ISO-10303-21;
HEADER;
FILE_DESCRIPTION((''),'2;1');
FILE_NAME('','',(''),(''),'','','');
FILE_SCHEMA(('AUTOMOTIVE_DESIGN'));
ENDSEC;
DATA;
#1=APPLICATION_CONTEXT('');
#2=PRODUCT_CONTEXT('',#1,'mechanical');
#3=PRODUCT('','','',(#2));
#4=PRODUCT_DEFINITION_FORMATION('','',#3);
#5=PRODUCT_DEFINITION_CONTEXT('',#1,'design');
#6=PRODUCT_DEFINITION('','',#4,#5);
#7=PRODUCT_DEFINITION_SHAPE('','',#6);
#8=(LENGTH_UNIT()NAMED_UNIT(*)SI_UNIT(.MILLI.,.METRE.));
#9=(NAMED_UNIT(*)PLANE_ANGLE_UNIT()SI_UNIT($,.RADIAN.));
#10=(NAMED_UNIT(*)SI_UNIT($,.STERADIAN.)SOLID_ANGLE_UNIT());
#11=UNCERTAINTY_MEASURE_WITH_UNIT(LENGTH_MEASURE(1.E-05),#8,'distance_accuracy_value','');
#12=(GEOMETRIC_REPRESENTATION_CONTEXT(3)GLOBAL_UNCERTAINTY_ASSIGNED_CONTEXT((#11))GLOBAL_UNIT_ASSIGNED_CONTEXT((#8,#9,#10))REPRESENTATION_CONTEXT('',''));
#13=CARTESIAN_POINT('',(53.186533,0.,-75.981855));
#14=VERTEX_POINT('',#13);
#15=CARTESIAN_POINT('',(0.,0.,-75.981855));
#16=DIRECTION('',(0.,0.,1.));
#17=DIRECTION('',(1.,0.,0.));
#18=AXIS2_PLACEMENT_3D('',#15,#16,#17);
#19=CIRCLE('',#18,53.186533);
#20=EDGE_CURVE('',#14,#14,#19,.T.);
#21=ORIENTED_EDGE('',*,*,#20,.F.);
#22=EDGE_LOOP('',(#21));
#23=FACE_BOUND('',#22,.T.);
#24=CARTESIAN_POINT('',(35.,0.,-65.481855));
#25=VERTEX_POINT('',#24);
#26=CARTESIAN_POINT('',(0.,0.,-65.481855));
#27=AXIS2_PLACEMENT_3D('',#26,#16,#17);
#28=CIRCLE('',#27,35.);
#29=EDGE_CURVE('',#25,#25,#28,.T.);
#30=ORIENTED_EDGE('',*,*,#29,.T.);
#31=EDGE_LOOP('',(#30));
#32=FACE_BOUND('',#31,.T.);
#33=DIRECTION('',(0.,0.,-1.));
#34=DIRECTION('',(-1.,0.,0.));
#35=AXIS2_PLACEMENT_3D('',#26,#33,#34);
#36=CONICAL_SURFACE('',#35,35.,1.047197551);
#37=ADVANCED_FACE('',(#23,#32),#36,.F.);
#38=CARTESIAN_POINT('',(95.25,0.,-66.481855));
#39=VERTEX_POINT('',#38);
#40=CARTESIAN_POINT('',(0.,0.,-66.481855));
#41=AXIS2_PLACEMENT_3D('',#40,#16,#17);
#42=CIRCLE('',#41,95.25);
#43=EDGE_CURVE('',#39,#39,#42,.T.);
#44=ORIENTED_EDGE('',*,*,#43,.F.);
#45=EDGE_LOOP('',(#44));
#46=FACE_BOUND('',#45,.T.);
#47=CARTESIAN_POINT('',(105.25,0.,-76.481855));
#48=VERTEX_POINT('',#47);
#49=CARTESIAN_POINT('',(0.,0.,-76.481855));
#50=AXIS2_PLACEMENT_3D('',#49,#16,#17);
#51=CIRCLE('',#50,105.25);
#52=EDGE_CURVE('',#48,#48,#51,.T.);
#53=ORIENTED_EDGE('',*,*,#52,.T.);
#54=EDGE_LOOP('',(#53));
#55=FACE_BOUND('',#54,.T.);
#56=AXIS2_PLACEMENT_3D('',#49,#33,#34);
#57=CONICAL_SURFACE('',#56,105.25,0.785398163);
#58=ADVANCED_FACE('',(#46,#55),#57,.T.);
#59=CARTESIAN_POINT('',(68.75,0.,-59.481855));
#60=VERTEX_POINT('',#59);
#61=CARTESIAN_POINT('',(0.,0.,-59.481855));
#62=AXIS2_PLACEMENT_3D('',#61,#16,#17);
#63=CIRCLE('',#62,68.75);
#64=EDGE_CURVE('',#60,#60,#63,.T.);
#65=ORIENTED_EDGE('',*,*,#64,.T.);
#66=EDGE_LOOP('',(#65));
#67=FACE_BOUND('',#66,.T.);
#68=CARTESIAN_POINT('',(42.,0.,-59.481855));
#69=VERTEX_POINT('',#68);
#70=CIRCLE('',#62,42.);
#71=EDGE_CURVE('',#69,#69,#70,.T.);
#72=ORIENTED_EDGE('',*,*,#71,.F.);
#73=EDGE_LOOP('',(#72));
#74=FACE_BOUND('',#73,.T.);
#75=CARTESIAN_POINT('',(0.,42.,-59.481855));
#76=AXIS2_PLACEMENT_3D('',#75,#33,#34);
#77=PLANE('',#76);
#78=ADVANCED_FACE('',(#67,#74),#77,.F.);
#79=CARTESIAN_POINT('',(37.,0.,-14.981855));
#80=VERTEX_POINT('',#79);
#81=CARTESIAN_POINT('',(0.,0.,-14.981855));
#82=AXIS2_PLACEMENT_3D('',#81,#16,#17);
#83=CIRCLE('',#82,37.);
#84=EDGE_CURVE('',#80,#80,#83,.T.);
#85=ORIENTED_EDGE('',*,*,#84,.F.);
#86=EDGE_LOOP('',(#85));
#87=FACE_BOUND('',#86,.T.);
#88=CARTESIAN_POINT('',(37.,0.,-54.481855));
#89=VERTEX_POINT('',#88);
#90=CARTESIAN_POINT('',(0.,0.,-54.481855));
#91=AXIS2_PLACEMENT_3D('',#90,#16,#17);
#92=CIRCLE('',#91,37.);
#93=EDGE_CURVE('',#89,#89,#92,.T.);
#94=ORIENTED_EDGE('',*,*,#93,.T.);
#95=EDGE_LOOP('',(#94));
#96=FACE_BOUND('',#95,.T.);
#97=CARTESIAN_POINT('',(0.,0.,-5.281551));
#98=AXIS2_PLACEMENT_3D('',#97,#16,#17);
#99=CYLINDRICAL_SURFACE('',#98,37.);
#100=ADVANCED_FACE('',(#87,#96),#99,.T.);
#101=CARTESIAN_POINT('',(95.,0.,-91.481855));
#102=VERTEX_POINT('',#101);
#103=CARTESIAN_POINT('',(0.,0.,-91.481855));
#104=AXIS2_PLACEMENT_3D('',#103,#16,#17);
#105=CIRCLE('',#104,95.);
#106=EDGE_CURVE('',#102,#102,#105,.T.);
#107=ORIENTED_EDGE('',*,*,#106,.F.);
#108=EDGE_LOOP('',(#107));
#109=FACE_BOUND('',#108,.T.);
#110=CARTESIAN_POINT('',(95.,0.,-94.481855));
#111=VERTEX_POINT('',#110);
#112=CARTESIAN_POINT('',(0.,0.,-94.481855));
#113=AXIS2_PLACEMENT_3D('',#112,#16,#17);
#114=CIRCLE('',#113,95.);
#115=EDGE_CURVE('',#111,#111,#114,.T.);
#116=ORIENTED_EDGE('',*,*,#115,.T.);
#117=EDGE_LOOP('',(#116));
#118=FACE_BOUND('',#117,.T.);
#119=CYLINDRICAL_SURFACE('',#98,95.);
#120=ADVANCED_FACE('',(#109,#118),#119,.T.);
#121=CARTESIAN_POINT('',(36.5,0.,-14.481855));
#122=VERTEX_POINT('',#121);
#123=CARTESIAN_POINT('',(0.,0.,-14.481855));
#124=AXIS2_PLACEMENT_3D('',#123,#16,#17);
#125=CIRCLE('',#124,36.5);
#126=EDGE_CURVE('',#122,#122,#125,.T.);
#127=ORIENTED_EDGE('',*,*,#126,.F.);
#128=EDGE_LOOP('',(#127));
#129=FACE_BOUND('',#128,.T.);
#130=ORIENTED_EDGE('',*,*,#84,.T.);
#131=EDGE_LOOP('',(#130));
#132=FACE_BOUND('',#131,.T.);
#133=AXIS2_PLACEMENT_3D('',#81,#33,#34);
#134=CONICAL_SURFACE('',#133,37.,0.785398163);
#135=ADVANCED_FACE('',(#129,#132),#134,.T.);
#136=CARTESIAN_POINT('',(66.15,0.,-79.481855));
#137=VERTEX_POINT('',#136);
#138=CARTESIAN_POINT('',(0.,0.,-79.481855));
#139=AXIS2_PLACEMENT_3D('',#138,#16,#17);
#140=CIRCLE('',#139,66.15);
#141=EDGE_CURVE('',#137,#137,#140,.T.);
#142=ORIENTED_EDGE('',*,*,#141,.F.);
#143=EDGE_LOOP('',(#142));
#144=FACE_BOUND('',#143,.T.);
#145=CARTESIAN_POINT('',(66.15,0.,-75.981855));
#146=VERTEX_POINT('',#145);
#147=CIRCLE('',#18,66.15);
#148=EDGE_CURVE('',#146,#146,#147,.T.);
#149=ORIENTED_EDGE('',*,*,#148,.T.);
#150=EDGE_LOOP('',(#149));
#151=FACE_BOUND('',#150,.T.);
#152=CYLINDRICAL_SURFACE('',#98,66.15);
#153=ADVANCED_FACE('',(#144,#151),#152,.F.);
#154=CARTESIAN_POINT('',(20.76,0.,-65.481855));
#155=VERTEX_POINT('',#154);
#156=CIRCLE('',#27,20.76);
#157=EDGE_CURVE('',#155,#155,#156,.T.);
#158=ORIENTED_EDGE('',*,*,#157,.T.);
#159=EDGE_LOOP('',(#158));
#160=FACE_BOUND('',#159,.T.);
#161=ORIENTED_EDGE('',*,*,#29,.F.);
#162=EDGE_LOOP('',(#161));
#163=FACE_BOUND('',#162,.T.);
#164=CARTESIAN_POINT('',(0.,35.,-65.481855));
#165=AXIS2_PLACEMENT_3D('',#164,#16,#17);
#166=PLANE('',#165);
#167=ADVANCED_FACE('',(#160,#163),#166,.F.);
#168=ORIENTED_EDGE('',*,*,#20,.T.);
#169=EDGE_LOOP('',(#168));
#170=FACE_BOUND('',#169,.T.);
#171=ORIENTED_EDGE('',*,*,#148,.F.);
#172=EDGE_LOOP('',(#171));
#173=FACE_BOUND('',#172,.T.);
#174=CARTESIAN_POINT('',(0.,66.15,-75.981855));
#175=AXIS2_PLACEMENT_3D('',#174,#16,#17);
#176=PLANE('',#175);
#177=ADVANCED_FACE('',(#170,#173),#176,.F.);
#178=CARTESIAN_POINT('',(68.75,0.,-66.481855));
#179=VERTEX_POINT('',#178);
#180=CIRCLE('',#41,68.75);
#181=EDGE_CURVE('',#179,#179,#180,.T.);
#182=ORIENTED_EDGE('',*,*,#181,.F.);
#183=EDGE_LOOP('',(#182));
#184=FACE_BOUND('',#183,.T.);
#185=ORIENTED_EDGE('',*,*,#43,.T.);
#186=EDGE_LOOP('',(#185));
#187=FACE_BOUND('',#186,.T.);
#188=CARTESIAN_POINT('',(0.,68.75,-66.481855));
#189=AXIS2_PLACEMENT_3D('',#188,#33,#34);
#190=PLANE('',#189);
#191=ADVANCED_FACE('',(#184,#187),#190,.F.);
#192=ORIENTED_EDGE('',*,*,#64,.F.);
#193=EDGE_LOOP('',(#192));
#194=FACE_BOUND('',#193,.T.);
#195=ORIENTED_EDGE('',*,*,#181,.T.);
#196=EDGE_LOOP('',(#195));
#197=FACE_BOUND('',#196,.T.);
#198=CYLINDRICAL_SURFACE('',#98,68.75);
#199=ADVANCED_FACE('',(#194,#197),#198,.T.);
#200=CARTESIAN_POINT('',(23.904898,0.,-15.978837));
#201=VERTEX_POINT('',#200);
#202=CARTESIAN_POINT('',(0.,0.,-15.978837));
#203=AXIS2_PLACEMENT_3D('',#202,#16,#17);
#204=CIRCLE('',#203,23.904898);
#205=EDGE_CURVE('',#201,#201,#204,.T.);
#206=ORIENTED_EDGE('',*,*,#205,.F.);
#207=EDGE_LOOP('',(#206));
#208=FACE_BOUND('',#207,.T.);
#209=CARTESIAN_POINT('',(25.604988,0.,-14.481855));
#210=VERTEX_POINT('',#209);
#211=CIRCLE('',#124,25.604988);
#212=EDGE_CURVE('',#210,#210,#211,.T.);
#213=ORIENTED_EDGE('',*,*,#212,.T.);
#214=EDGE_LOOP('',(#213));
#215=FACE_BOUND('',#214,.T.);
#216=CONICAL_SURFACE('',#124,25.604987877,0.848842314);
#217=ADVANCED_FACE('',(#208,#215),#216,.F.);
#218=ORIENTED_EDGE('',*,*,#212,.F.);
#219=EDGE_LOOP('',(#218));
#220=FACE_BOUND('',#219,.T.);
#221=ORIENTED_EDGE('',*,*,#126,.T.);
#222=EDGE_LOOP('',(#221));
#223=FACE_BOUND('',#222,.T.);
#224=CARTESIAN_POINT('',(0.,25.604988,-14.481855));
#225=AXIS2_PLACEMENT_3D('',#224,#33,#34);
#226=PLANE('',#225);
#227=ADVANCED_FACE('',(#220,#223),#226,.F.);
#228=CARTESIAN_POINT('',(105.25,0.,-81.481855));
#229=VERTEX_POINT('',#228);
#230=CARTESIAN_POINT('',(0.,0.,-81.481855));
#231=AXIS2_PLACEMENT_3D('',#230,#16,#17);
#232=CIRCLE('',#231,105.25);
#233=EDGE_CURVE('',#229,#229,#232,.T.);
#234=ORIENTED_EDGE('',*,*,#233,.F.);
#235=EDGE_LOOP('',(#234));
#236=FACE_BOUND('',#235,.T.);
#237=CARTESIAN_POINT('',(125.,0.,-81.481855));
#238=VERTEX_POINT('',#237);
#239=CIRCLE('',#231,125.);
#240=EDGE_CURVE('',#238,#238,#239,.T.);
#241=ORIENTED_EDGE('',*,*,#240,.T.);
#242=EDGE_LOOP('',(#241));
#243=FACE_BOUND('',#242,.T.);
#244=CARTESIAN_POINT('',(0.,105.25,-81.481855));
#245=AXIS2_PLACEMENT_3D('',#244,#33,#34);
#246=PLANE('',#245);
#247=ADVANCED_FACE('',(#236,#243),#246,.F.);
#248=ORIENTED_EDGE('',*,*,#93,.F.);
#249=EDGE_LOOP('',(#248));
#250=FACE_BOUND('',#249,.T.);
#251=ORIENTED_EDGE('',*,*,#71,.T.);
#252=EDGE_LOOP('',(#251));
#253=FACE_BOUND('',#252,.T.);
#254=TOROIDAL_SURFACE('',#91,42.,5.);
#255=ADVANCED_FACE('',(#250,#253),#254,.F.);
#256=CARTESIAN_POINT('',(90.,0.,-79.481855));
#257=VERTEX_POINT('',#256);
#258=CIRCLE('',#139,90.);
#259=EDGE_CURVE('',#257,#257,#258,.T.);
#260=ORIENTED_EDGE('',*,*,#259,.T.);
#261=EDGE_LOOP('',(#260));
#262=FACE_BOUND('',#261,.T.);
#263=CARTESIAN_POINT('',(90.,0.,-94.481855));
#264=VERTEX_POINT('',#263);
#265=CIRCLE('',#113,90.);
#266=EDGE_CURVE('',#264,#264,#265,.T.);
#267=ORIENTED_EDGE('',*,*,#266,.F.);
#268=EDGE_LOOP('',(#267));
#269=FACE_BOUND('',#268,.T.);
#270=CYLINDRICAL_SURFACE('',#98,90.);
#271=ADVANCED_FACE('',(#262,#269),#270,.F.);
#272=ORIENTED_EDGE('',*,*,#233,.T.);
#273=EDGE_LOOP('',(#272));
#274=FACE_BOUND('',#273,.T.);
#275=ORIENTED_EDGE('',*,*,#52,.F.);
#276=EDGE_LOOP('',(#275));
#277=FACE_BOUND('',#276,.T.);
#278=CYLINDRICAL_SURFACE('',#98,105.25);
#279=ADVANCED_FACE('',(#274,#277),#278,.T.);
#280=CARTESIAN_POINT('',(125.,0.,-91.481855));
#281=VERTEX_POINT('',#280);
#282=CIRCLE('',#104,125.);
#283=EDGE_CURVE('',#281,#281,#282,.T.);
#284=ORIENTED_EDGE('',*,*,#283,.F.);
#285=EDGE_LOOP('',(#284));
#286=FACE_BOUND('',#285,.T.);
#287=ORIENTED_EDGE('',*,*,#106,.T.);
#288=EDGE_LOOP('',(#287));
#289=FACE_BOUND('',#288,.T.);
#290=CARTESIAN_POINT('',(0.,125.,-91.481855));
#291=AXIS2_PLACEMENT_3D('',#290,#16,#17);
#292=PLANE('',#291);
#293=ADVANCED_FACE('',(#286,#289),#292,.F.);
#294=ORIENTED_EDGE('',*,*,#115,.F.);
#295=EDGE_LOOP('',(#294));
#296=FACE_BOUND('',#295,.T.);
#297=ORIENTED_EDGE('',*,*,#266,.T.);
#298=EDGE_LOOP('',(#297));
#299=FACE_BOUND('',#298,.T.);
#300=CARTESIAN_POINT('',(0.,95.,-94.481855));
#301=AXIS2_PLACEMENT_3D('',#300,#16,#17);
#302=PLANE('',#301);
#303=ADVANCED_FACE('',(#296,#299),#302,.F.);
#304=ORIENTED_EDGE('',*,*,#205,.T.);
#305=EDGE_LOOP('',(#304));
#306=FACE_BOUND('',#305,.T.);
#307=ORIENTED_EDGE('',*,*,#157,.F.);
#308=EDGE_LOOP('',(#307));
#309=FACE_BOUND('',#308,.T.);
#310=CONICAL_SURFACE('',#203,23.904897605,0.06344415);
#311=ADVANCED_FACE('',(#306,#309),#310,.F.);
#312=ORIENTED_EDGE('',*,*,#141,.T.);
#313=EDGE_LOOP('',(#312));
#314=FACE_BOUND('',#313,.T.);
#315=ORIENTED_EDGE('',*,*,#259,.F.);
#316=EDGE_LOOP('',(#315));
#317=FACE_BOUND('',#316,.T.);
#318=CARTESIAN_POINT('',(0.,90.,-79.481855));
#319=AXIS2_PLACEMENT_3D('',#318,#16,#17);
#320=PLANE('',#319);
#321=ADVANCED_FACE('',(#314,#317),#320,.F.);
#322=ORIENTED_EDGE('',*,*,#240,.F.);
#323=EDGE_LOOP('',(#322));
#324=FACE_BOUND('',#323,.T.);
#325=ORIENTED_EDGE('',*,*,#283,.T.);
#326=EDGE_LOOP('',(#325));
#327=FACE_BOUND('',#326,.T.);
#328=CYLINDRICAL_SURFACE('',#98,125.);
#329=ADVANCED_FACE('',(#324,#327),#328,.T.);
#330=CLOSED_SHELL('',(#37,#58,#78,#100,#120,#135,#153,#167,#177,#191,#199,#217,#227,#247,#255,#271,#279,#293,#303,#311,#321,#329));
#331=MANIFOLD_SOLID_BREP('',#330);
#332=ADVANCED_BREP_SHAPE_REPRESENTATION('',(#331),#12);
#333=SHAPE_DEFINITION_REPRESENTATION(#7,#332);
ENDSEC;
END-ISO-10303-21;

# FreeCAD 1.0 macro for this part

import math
import FreeCAD as App
import Part
import Sketcher
from FreeCAD import Vector
Q = App.Units.Quantity

doc = App.newDocument("Part")
body = doc.addObject("PartDesign::Body", "Body")

sketch1 = body.newObject("Sketcher::SketchObject", "Sketch")
sketch1.AttachmentSupport = (doc.getObject("YZ_Plane"), [""])
sketch1.MapMode = "FlatFace"
sketch1.addGeometry([
    Part.LineSegment(Vector(23.9, -16, 0), Vector(20.8, -65.5, 0)),
    Part.LineSegment(Vector(20.8, -65.5, 0), Vector(35, -65.5, 0)),
    Part.LineSegment(Vector(35, -65.5, 0), Vector(53.2, -76, 0)),
    Part.LineSegment(Vector(53.2, -76, 0), Vector(66.2, -76, 0)),
    Part.LineSegment(Vector(66.2, -76, 0), Vector(66.2, -79.5, 0)),
    Part.LineSegment(Vector(66.2, -79.5, 0), Vector(90, -79.5, 0)),
    Part.LineSegment(Vector(90, -79.5, 0), Vector(90, -94.5, 0)),
    Part.LineSegment(Vector(90, -94.5, 0), Vector(95, -94.5, 0)),
    Part.LineSegment(Vector(95, -94.5, 0), Vector(95, -91.5, 0)),
    Part.LineSegment(Vector(95, -91.5, 0), Vector(125, -91.5, 0)),
    Part.LineSegment(Vector(125, -91.5, 0), Vector(125, -81.5, 0)),
    Part.LineSegment(Vector(125, -81.5, 0), Vector(105.2, -81.5, 0)),
    Part.LineSegment(Vector(105.2, -81.5, 0), Vector(105.2, -76.5, 0)),
    Part.LineSegment(Vector(105.2, -76.5, 0), Vector(95.2, -66.5, 0)),
    Part.LineSegment(Vector(95.2, -66.5, 0), Vector(68.8, -66.5, 0)),
    Part.LineSegment(Vector(68.8, -66.5, 0), Vector(68.8, -59.5, 0)),
    Part.LineSegment(Vector(68.8, -59.5, 0), Vector(42, -59.5, 0)),
    Part.ArcOfCircle(Part.Circle(Vector(42, -54.5, 0), Vector(0, 0, 1), 5), math.radians(180), math.radians(270)),
    Part.LineSegment(Vector(37, -54.5, 0), Vector(37, -15, 0)),
    Part.LineSegment(Vector(37, -15, 0), Vector(36.5, -14.5, 0)),
    Part.LineSegment(Vector(36.5, -14.5, 0), Vector(25.6, -14.5, 0)),
    Part.LineSegment(Vector(25.6, -14.5, 0), Vector(23.9, -16, 0)),
], False)
sketch1.addConstraint([
    Sketcher.Constraint("Coincident", 0, 2, 1, 1),
    Sketcher.Constraint("Coincident", 1, 2, 2, 1),
    Sketcher.Constraint("Coincident", 2, 2, 3, 1),
    Sketcher.Constraint("Coincident", 3, 2, 4, 1),
    Sketcher.Constraint("Coincident", 4, 2, 5, 1),
    Sketcher.Constraint("Coincident", 5, 2, 6, 1),
    Sketcher.Constraint("Coincident", 6, 2, 7, 1),
    Sketcher.Constraint("Coincident", 7, 2, 8, 1),
    Sketcher.Constraint("Coincident", 8, 2, 9, 1),
    Sketcher.Constraint("Coincident", 9, 2, 10, 1),
    Sketcher.Constraint("Coincident", 10, 2, 11, 1),
    Sketcher.Constraint("Coincident", 11, 2, 12, 1),
    Sketcher.Constraint("Coincident", 12, 2, 13, 1),
    Sketcher.Constraint("Coincident", 13, 2, 14, 1),
    Sketcher.Constraint("Coincident", 14, 2, 15, 1),
    Sketcher.Constraint("Coincident", 15, 2, 16, 1),
    Sketcher.Constraint("Tangent", 16, 2, 17, 2),
    Sketcher.Constraint("Tangent", 17, 1, 18, 1),
    Sketcher.Constraint("Coincident", 18, 2, 19, 1),
    Sketcher.Constraint("Coincident", 19, 2, 20, 1),
    Sketcher.Constraint("Coincident", 20, 2, 21, 1),
    Sketcher.Constraint("Coincident", 21, 2, 0, 1),
    Sketcher.Constraint("Horizontal", 1),
    Sketcher.Constraint("Horizontal", 3),
    Sketcher.Constraint("Vertical", 4),
    Sketcher.Constraint("Horizontal", 5),
    Sketcher.Constraint("Vertical", 6),
    Sketcher.Constraint("Horizontal", 7),
    Sketcher.Constraint("Vertical", 8),
    Sketcher.Constraint("Horizontal", 9),
    Sketcher.Constraint("Vertical", 10),
    Sketcher.Constraint("Horizontal", 11),
    Sketcher.Constraint("Vertical", 12),
    Sketcher.Constraint("Horizontal", 14),
    Sketcher.Constraint("Vertical", 15),
    Sketcher.Constraint("Horizontal", 16),
    Sketcher.Constraint("Vertical", 18),
    Sketcher.Constraint("Horizontal", 20),
    Sketcher.Constraint("Parallel", 13, 19),
    Sketcher.Constraint("Equal", 7, 12),
    Sketcher.Constraint("Radius", 17, 5.0),
    Sketcher.Constraint("DistanceX", 7, 1, 7, 2, 5.0),
    Sketcher.Constraint("DistanceX", 9, 1, 9, 2, 30.0),
    Sketcher.Constraint("DistanceY", 6, 2, 6, 1, 15.0),
    Sketcher.Constraint("DistanceY", 8, 1, 8, 2, 3.0),
    Sketcher.Constraint("DistanceY", 10, 1, 10, 2, 10.0),
    Sketcher.Constraint("DistanceY", 15, 1, 15, 2, 7.0),
    Sketcher.Constraint("Angle", 2, Q("-30 deg")),
    Sketcher.Constraint("Angle", 13, Q("135 deg")),
    Sketcher.Constraint("Distance", 2, 21.0),
    Sketcher.Constraint("DistanceX", 14, 2, 14, 1, 26.5),
    Sketcher.Constraint("DistanceY", 4, 2, 4, 1, 3.5),
    Sketcher.Constraint("DistanceY", 18, 1, 18, 2, 39.5),
    Sketcher.Constraint("DistanceX", -1, 1, 17, 3, 42.0),
    Sketcher.Constraint("DistanceX", -1, 1, 1, 2, 35.0),
    Sketcher.Constraint("DistanceX", -1, 1, 5, 2, 90.0),
    Sketcher.Constraint("DistanceY", 0, 2, 17, 3, 11.0),
    Sketcher.Constraint("DistanceY", 17, 1, 19, 2, 40.0),
    Sketcher.Constraint("DistanceX", 1, 1, 1, 2, 14.24),
    Sketcher.Constraint("DistanceX", 5, 1, 5, 2, 23.85),
    Sketcher.Constraint("DistanceX", 11, 2, 11, 1, 19.75),
    Sketcher.Constraint("Distance", 21, 2.265229),
    Sketcher.Constraint("DistanceX", 20, 2, 20, 1, 10.895012),
    Sketcher.Constraint("DistanceX", 21, 2, 20, 2, 1.70009),
    Sketcher.Constraint("DistanceY", 17, 3, -1, 1, 54.481855),
])
revolution = body.newObject("PartDesign::Revolution", "Revolution")
revolution.Profile = sketch1
revolution.ReferenceAxis = (sketch1, ["V_Axis"])
revolution.Angle = 360

doc.recompute()
